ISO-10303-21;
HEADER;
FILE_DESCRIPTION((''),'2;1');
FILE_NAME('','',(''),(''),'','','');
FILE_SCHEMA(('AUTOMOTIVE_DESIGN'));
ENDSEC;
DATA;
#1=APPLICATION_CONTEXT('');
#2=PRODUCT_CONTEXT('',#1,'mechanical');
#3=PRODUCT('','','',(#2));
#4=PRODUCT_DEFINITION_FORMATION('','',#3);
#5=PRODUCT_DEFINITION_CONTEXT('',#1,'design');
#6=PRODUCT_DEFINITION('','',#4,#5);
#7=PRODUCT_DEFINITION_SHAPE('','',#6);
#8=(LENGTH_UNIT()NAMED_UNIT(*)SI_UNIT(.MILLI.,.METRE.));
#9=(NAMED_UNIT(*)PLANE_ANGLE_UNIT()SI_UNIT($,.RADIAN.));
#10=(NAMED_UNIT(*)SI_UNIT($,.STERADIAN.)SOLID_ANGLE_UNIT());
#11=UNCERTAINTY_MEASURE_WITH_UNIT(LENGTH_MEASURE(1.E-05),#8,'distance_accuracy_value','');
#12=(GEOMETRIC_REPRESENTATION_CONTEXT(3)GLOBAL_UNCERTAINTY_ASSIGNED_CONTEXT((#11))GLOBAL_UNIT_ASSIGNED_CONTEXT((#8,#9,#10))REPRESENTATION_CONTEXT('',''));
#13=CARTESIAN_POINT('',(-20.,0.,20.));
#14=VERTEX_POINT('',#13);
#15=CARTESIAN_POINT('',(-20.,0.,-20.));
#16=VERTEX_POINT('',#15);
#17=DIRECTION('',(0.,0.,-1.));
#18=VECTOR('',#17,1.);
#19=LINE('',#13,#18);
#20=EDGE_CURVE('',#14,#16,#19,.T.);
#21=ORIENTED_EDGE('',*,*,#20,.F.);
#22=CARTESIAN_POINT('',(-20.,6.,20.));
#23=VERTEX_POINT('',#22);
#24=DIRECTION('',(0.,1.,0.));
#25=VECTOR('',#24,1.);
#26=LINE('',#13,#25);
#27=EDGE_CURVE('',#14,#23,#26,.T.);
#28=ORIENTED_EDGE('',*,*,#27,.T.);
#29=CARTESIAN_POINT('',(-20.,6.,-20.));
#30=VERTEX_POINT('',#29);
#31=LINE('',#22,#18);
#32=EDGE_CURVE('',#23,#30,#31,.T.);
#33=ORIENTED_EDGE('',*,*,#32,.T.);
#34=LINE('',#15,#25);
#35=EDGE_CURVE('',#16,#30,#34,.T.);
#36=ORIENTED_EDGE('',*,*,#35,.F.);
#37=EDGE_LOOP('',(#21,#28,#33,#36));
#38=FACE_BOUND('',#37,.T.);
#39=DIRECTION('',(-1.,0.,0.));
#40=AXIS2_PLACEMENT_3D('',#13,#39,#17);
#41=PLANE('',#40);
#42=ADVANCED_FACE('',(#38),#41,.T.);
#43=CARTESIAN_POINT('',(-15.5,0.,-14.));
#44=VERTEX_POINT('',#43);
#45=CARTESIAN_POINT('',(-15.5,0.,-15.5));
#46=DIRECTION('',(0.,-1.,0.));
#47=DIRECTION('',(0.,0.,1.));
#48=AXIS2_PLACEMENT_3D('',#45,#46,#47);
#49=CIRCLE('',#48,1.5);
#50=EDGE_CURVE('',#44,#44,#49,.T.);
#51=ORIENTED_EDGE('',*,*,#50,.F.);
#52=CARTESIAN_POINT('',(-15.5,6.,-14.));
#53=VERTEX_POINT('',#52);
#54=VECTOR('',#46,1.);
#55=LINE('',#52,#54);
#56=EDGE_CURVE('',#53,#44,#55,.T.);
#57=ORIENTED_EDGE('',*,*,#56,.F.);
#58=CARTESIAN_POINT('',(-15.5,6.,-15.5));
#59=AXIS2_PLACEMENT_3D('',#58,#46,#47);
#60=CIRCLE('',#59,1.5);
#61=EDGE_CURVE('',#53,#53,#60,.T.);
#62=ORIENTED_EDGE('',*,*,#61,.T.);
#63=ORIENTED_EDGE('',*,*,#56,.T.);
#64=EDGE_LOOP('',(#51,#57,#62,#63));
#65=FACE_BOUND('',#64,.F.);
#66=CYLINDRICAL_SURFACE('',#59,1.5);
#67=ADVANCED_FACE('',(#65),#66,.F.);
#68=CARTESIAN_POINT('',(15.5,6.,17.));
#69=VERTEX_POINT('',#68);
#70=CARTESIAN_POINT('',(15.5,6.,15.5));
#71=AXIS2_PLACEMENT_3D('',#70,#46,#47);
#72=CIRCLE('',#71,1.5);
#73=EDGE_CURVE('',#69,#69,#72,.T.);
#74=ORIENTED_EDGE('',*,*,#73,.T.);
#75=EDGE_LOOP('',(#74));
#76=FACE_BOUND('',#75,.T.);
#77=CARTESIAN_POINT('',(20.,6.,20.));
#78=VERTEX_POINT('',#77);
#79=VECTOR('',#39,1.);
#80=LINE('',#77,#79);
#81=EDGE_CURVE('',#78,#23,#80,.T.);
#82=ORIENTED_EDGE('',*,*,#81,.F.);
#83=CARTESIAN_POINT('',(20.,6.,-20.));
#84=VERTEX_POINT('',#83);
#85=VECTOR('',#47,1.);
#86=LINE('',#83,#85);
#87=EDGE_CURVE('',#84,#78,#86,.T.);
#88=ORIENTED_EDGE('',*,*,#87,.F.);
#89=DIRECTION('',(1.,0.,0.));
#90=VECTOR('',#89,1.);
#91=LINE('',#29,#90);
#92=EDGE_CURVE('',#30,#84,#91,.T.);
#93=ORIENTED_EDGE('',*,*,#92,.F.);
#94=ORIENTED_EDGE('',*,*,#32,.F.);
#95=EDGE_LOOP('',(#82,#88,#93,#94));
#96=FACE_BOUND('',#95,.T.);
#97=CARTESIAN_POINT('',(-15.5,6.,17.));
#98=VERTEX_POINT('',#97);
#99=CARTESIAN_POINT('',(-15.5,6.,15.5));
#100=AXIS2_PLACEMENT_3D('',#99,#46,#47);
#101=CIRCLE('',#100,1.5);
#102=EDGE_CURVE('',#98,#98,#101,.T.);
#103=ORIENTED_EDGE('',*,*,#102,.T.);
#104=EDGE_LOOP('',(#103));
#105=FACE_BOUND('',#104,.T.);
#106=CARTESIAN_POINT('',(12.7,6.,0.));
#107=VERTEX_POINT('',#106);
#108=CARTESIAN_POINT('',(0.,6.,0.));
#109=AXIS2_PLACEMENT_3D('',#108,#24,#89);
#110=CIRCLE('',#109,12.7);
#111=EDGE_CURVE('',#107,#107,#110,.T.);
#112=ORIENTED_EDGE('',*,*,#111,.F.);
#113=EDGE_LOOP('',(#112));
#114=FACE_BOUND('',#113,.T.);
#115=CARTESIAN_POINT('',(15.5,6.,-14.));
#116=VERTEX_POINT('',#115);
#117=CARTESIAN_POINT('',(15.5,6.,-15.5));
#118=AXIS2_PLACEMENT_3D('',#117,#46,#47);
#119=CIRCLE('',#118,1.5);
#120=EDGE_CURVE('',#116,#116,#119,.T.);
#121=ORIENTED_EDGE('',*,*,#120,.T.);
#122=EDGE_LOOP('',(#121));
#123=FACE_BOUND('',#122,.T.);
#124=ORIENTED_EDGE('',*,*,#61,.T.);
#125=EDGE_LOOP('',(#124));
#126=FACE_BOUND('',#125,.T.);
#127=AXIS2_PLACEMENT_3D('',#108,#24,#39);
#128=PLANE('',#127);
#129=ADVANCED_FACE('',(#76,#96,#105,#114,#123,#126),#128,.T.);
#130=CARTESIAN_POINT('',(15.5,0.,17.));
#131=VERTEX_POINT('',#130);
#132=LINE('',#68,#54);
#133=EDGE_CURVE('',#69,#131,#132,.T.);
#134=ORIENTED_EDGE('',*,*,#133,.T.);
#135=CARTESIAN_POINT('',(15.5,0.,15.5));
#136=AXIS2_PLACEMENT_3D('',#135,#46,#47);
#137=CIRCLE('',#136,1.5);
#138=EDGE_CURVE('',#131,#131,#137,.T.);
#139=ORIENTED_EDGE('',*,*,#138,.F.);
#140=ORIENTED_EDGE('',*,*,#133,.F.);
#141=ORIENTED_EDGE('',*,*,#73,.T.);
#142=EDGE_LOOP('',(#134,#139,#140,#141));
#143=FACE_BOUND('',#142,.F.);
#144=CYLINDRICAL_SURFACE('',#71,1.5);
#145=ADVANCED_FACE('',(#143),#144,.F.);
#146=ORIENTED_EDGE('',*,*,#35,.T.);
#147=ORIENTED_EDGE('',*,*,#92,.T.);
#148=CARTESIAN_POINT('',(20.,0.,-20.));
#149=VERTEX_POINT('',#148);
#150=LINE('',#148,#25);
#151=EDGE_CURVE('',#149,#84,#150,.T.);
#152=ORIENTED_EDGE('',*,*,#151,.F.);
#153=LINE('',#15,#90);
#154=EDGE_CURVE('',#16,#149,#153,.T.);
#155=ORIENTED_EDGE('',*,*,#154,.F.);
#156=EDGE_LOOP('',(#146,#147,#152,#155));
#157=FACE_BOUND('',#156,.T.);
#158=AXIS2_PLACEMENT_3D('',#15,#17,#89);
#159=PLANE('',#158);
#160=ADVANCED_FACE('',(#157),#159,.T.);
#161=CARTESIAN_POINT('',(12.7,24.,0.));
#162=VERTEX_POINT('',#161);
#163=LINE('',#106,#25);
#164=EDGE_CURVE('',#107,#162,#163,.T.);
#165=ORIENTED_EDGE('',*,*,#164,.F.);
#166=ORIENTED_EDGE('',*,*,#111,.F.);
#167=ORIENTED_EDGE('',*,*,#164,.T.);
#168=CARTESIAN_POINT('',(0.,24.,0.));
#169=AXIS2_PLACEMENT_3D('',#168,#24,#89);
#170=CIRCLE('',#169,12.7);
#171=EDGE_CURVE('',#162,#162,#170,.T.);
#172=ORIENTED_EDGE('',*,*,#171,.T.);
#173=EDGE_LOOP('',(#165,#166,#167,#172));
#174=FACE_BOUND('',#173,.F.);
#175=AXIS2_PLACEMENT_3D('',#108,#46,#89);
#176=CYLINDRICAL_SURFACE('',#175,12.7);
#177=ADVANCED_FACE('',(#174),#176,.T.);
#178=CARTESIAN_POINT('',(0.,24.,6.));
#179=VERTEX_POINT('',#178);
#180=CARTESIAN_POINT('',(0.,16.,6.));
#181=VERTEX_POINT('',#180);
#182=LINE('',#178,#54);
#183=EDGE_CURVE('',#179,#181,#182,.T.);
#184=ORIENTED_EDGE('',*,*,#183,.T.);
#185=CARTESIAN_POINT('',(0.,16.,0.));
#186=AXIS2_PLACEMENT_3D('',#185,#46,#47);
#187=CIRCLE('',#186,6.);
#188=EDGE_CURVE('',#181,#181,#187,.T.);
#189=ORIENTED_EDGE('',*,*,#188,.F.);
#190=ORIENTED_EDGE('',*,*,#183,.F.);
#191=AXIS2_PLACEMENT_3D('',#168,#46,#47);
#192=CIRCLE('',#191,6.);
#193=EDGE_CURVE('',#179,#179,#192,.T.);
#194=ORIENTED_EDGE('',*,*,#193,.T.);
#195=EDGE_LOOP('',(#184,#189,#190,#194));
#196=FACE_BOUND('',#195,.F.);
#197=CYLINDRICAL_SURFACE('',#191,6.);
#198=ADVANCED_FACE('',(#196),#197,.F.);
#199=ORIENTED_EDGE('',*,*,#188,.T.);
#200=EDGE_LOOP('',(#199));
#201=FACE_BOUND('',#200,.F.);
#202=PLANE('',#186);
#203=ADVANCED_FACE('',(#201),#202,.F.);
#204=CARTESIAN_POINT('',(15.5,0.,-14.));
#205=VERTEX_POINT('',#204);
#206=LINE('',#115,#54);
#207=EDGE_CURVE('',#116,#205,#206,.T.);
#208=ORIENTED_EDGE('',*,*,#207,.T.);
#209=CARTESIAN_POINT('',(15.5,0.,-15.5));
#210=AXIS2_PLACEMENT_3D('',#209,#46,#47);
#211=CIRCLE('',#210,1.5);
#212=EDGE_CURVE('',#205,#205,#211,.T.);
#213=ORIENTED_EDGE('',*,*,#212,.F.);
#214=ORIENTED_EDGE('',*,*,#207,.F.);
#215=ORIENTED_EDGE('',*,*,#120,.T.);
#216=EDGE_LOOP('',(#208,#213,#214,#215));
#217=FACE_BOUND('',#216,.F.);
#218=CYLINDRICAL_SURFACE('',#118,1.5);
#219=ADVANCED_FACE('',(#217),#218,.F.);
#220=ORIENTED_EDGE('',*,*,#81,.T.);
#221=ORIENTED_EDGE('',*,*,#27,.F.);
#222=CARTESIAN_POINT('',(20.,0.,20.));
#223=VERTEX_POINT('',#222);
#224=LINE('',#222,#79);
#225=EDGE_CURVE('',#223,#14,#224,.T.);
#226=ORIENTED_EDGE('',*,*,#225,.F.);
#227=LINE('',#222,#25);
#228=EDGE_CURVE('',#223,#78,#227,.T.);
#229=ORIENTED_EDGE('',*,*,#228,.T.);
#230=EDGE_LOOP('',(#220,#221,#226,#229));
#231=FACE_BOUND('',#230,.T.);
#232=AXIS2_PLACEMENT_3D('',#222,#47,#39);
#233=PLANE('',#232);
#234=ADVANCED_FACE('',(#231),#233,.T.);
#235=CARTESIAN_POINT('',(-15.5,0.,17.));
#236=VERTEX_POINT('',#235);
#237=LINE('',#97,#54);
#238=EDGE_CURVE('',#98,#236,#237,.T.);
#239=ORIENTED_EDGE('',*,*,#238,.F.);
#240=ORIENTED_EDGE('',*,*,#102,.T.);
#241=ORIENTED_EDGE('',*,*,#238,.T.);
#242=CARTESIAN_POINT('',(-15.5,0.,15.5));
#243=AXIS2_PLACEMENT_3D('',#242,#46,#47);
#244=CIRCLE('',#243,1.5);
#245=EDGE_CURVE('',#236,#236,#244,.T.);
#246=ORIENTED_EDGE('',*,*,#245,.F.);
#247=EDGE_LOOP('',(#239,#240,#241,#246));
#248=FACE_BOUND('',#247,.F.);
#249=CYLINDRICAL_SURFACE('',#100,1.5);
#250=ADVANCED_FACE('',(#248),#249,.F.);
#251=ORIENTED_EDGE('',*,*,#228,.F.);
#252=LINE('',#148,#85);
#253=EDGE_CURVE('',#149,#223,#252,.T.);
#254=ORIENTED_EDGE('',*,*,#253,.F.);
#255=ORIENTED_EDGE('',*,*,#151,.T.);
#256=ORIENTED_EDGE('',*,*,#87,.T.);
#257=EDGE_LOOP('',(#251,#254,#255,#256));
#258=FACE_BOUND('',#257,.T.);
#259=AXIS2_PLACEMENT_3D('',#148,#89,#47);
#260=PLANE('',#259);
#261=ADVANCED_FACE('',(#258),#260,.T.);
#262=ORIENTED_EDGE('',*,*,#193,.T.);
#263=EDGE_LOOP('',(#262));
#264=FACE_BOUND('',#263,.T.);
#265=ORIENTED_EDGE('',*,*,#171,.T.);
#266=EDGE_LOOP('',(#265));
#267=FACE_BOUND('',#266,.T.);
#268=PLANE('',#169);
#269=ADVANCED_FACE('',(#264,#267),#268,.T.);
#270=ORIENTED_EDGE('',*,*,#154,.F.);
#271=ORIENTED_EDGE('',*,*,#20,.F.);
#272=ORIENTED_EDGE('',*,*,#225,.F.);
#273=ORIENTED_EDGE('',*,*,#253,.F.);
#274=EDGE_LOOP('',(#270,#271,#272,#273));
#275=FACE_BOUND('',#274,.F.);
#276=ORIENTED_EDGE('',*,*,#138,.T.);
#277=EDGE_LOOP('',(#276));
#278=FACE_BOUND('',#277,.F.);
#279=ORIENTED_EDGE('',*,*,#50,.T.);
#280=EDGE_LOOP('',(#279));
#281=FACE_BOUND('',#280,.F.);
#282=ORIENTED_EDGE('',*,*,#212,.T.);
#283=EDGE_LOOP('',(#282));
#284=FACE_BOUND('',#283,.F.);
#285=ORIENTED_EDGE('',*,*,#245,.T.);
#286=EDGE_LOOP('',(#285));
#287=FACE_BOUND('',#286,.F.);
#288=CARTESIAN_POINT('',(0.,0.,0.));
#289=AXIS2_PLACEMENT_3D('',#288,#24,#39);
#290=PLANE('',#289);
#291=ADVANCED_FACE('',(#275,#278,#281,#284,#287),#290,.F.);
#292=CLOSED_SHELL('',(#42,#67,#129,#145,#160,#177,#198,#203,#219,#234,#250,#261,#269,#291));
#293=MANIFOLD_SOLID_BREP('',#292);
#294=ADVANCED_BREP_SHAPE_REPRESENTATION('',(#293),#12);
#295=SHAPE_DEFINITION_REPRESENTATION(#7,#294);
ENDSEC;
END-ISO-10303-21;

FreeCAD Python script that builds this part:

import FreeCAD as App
import Part
import Sketcher

V = App.Vector
Q = App.Units.Quantity

doc = App.newDocument("Part")
body = doc.addObject("PartDesign::Body", "Body")

sketch1 = body.newObject("Sketcher::SketchObject", "Sketch")
sketch1.AttachmentSupport = (doc.getObject("XZ_Plane"), [""])
sketch1.MapMode = "FlatFace"
sketch1.addGeometry([
    Part.LineSegment(V(-20, 20, 0), V(20, 20, 0)),
    Part.LineSegment(V(20, 20, 0), V(20, -20, 0)),
    Part.LineSegment(V(20, -20, 0), V(-20, -20, 0)),
    Part.LineSegment(V(-20, -20, 0), V(-20, 20, 0)),
], False)
sketch1.addConstraint([
    Sketcher.Constraint("Coincident", 0, 2, 1, 1),
    Sketcher.Constraint("Coincident", 1, 2, 2, 1),
    Sketcher.Constraint("Coincident", 2, 2, 3, 1),
    Sketcher.Constraint("Coincident", 3, 2, 0, 1),
    Sketcher.Constraint("Horizontal", 0),
    Sketcher.Constraint("Vertical", 1),
    Sketcher.Constraint("Horizontal", 2),
    Sketcher.Constraint("Vertical", 3),
    Sketcher.Constraint("Symmetric", 0, 2, 2, 2, -1, 1),
    Sketcher.Constraint("Equal", 2, 1),
    Sketcher.Constraint("DistanceX", 0, 1, 0, 2, Q("40 mm")),
])
pad1 = body.newObject("PartDesign::Pad", "Pad")
pad1.Profile = sketch1
pad1.Length = 6
pad1.Reversed = True

sketch2 = body.newObject("Sketcher::SketchObject", "Sketch001")
sketch2.AttachmentSupport = (doc.getObject("XZ_Plane"), [""])
sketch2.MapMode = "FlatFace"
sketch2.AttachmentOffset = App.Placement(V(0, 0, -6), App.Rotation())
sketch2.addGeometry([
    Part.Circle(V(-15.5, 15.5, 0), V(0, 0, 1), 1.5),
    Part.Circle(V(-15.5, -15.5, 0), V(0, 0, 1), 1.5),
    Part.Circle(V(15.5, -15.5, 0), V(0, 0, 1), 1.5),
    Part.Circle(V(15.5, 15.5, 0), V(0, 0, 1), 1.5),
], False)
sketch2.addConstraint([
    Sketcher.Constraint("Equal", 0, 1),
    Sketcher.Constraint("Equal", 1, 2),
    Sketcher.Constraint("Equal", 2, 3),
    Sketcher.Constraint("Symmetric", 0, 3, 2, 3, -1, 1),
    Sketcher.Constraint("Symmetric", 1, 3, 3, 3, -1, 1),
    Sketcher.Constraint("Symmetric", 1, 3, 2, 3, -2),
    Sketcher.Constraint("Diameter", 0, Q("3 mm")),
    Sketcher.Constraint("DistanceY", 1, 3, 0, 3, Q("31 mm")),
    Sketcher.Constraint("DistanceX", 1, 3, 2, 3, Q("31 mm")),
])
doc.recompute()
hole = body.newObject("PartDesign::Hole", "Hole")
hole.Profile = sketch2
hole.ThreadType = "None"
hole.Diameter = 3
hole.DepthType = "Dimension"
hole.Depth = 8
hole.DrillPoint = "Angled"
hole.DrillPointAngle = 118
hole.Reversed = True

sketch3 = body.newObject("Sketcher::SketchObject", "Sketch002")
sketch3.AttachmentSupport = (doc.getObject("XZ_Plane"), [""])
sketch3.MapMode = "FlatFace"
sketch3.AttachmentOffset = App.Placement(V(0, 0, -6), App.Rotation())
sketch3.addGeometry(Part.Circle(V(0, 0, 0), V(0, 0, 1), 13), False)
sketch3.addConstraint([
    Sketcher.Constraint("Coincident", 0, 3, -1, 1),
    Sketcher.Constraint("Diameter", 0, Q("25.4 mm")),
])
pad2 = body.newObject("PartDesign::Pad", "Pad001")
pad2.Profile = sketch3
pad2.Length = 18
pad2.Reversed = True

sketch4 = body.newObject("Sketcher::SketchObject", "Sketch003")
sketch4.AttachmentSupport = (doc.getObject("XZ_Plane"), [""])
sketch4.MapMode = "FlatFace"
sketch4.AttachmentOffset = App.Placement(V(0, 0, -24), App.Rotation())
sketch4.addGeometry(Part.Circle(V(0, 0, 0), V(0, 0, 1), 6), False)
sketch4.addConstraint([
    Sketcher.Constraint("Coincident", 0, 3, -1, 1),
    Sketcher.Constraint("Diameter", 0, Q("12 mm")),
])
doc.recompute()
hole2 = body.newObject("PartDesign::Hole", "Hole001")
hole2.Profile = sketch4
hole2.ThreadType = "None"
hole2.Diameter = 12
hole2.DepthType = "Dimension"
hole2.Depth = 8
hole2.DrillPoint = "Flat"
hole2.Reversed = True

doc.recompute()
